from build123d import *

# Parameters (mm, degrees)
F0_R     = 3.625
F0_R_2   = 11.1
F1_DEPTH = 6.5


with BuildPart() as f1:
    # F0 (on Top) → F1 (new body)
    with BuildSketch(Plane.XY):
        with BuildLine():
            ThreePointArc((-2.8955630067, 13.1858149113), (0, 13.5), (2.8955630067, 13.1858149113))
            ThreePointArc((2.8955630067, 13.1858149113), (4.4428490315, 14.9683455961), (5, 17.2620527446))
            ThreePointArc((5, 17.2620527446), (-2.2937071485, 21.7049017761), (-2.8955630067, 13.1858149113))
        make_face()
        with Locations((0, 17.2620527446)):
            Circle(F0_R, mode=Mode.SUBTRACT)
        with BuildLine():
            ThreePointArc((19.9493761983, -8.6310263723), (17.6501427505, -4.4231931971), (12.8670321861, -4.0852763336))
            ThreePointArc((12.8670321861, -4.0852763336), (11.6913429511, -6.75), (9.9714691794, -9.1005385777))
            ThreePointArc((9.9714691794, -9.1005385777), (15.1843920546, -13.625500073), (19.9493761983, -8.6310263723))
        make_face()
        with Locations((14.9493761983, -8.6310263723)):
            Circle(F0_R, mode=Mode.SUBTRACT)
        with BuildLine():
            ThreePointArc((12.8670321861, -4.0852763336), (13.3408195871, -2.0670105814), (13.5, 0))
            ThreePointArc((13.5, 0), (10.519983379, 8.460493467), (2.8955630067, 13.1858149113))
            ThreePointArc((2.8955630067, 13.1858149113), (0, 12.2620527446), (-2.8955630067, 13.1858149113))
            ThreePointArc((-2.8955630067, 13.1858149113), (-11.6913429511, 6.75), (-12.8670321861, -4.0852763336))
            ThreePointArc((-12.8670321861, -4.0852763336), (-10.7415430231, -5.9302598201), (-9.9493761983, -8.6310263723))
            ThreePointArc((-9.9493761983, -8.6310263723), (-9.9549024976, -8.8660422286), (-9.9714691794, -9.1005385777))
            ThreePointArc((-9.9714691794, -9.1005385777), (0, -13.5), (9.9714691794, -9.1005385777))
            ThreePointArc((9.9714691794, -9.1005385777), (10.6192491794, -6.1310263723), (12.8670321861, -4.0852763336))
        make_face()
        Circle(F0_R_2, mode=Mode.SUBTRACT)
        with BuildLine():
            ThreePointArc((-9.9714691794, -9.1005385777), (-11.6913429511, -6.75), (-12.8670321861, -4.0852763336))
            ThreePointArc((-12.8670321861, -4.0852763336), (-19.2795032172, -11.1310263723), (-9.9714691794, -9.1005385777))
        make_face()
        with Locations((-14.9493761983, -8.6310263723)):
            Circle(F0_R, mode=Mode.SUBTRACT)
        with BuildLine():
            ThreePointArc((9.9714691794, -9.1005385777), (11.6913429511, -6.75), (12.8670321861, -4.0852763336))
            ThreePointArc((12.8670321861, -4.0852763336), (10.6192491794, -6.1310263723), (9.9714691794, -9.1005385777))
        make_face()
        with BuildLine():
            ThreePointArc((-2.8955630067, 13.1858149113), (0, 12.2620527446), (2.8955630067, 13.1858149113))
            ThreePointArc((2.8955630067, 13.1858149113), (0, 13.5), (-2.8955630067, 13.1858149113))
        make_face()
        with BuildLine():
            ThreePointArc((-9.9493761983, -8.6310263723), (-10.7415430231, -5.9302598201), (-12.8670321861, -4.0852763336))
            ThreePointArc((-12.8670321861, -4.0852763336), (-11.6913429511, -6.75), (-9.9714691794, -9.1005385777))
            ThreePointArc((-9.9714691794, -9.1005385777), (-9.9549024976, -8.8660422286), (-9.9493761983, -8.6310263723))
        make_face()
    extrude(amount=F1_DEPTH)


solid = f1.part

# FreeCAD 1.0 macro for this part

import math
import FreeCAD as App
import Part
import Sketcher
from FreeCAD import Vector
Q = App.Units.Quantity

doc = App.newDocument("Part")
body = doc.addObject("PartDesign::Body", "Body")

# Sketch on XY plane
sketch1 = body.newObject("Sketcher::SketchObject", "Sketch")
sketch1.AttachmentSupport = (doc.getObject("XY_Plane"), [""])
sketch1.MapMode = "FlatFace"
sketch1.addGeometry(Part.ArcOfCircle(Part.Circle(Vector(0, 17.3, 0), Vector(0, 0, 1), 5), math.radians(-55), math.radians(235)), False)
sketch1.addGeometry(Part.ArcOfCircle(Part.Circle(Vector(0, 0, 0), Vector(0, 0, 1), 13.5), math.radians(102), math.radians(198)), False)
sketch1.addGeometry(Part.ArcOfCircle(Part.Circle(Vector(-14.9, -8.6, 0), Vector(0, 0, 1), 5), math.radians(65), math.radians(355)), False)
sketch1.addGeometry(Part.ArcOfCircle(Part.Circle(Vector(0, 0, 0), Vector(0, 0, 1), 13.5), math.radians(-138), math.radians(-42)), False)
sketch1.addGeometry(Part.ArcOfCircle(Part.Circle(Vector(14.9, -8.6, 0), Vector(0, 0, 1), 5), math.radians(-175), math.radians(0)), False)
sketch1.addGeometry(Part.ArcOfCircle(Part.Circle(Vector(14.9, -8.6, 0), Vector(0, 0, 1), 5), math.radians(0), math.radians(115)), False)
sketch1.addGeometry(Part.ArcOfCircle(Part.Circle(Vector(0, 0, 0), Vector(0, 0, 1), 13.5), math.radians(-17.61), math.radians(0)), False)
sketch1.addGeometry(Part.ArcOfCircle(Part.Circle(Vector(0, 0, 0), Vector(0, 0, 1), 13.5), math.radians(0), math.radians(78)), False)
sketch1.addGeometry(Part.Circle(Vector(0, 17.3, 0), Vector(0, 0, 1), 3.6), False)
sketch1.addGeometry(Part.Circle(Vector(0, 0, 0), Vector(0, 0, 1), 11.1), False)
sketch1.addGeometry(Part.Circle(Vector(14.9, -8.6, 0), Vector(0, 0, 1), 3.6), False)
sketch1.addGeometry(Part.Circle(Vector(-14.9, -8.6, 0), Vector(0, 0, 1), 3.6), False)
sketch1.addConstraint(Sketcher.Constraint("Coincident", 0, 2, 1, 1))
sketch1.addConstraint(Sketcher.Constraint("Coincident", 1, 2, 2, 1))
sketch1.addConstraint(Sketcher.Constraint("Coincident", 2, 2, 3, 1))
sketch1.addConstraint(Sketcher.Constraint("Coincident", 3, 2, 4, 1))
sketch1.addConstraint(Sketcher.Constraint("Tangent", 4, 2, 5, 1))
sketch1.addConstraint(Sketcher.Constraint("Coincident", 5, 2, 6, 1))
sketch1.addConstraint(Sketcher.Constraint("Tangent", 6, 2, 7, 1))
sketch1.addConstraint(Sketcher.Constraint("Coincident", 7, 2, 0, 1))
sketch1.addConstraint(Sketcher.Constraint("Coincident", 1, 3, -1, 1))
sketch1.addConstraint(Sketcher.Constraint("Coincident", 3, 3, -1, 1))
sketch1.addConstraint(Sketcher.Constraint("Coincident", 6, 3, -1, 1))
sketch1.addConstraint(Sketcher.Constraint("Coincident", 9, 3, -1, 1))
sketch1.addConstraint(Sketcher.Constraint("Coincident", 8, 3, 0, 3))
sketch1.addConstraint(Sketcher.Constraint("Coincident", 10, 3, 4, 3))
sketch1.addConstraint(Sketcher.Constraint("Coincident", 11, 3, 2, 3))
sketch1.addConstraint(Sketcher.Constraint("Equal", 0, 2))
sketch1.addConstraint(Sketcher.Constraint("Equal", 1, 3))
sketch1.addConstraint(Sketcher.Constraint("Equal", 2, 4))
sketch1.addConstraint(Sketcher.Constraint("Equal", 4, 5))
sketch1.addConstraint(Sketcher.Constraint("Equal", 3, 6))
sketch1.addConstraint(Sketcher.Constraint("Equal", 6, 7))
sketch1.addConstraint(Sketcher.Constraint("Equal", 8, 10))
sketch1.addConstraint(Sketcher.Constraint("Equal", 10, 11))
sketch1.addConstraint(Sketcher.Constraint("Symmetric", 2, 3, 4, 3, -2))
sketch1.addConstraint(Sketcher.Constraint("PointOnObject", 0, 3, -2))
sketch1.addConstraint(Sketcher.Constraint("PointOnObject", 6, 2, -1))
sketch1.addConstraint(Sketcher.Constraint("Horizontal", 11, 3, 4, 2))
sketch1.addConstraint(Sketcher.Constraint("Radius", 0, Q("5 mm")))
sketch1.addConstraint(Sketcher.Constraint("Diameter", 9, Q("22.2 mm")))
sketch1.addConstraint(Sketcher.Constraint("Radius", 1, Q("13.5 mm")))
sketch1.addConstraint(Sketcher.Constraint("Diameter", 8, Q("7.25 mm")))
sketch1.addConstraint(Sketcher.Constraint("DistanceX", 2, 2, -1, 1, Q("9.971469 mm")))
sketch1.addConstraint(Sketcher.Constraint("DistanceY", 2, 3, 0, 3, Q("25.893079 mm")))
sketch1.addConstraint(Sketcher.Constraint("DistanceY", 2, 3, 1, 2, Q("4.54575 mm")))
pad1 = body.newObject("PartDesign::Pad", "Pad")
pad1.Profile = sketch1
pad1.Length = 6.5

doc.recompute()
